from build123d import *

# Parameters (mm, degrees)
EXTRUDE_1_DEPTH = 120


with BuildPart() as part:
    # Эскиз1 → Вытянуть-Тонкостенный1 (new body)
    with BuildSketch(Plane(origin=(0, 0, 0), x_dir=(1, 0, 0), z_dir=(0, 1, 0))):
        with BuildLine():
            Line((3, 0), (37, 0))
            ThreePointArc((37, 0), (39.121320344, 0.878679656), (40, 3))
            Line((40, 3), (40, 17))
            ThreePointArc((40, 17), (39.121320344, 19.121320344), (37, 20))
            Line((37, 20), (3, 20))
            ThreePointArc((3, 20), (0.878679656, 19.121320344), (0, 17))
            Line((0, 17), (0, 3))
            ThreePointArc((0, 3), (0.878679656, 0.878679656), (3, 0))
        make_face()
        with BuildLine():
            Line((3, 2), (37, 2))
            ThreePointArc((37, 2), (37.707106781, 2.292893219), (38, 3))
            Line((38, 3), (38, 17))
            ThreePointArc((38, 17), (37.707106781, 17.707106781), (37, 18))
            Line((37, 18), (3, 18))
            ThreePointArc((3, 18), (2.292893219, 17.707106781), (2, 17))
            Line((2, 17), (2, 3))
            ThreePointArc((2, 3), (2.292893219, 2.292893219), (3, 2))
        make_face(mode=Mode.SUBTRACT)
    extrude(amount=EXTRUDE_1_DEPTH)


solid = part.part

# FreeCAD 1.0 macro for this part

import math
import FreeCAD as App
import Part
import Sketcher
Q = App.Units.Quantity

doc = App.newDocument("Part")
body = doc.addObject("PartDesign::Body", "Body")

sketch1 = body.newObject("Sketcher::SketchObject", "Sketch")
sketch1.AttachmentSupport = (doc.getObject("XZ_Plane"), [""])
sketch1.MapMode = "FlatFace"
sketch1.addGeometry([
    Part.LineSegment(App.Vector(3, 0, 0), App.Vector(37, 0, 0)),
    Part.ArcOfCircle(Part.Circle(App.Vector(37, -3, 0), App.Vector(0, 0, 1), 3), math.radians(0), math.radians(90)),
    Part.LineSegment(App.Vector(40, -3, 0), App.Vector(40, -17, 0)),
    Part.ArcOfCircle(Part.Circle(App.Vector(37, -17, 0), App.Vector(0, 0, 1), 3), math.radians(-90), math.radians(0)),
    Part.LineSegment(App.Vector(37, -20, 0), App.Vector(3, -20, 0)),
    Part.ArcOfCircle(Part.Circle(App.Vector(3, -17, 0), App.Vector(0, 0, 1), 3), math.radians(180), math.radians(270)),
    Part.LineSegment(App.Vector(0, -17, 0), App.Vector(0, -3, 0)),
    Part.ArcOfCircle(Part.Circle(App.Vector(3, -3, 0), App.Vector(0, 0, 1), 3), math.radians(90), math.radians(180)),
    Part.LineSegment(App.Vector(37, -2, 0), App.Vector(3, -2, 0)),
    Part.ArcOfCircle(Part.Circle(App.Vector(3, -3, 0), App.Vector(0, 0, 1), 1), math.radians(90), math.radians(180)),
    Part.LineSegment(App.Vector(2, -3, 0), App.Vector(2, -17, 0)),
    Part.ArcOfCircle(Part.Circle(App.Vector(3, -17, 0), App.Vector(0, 0, 1), 1), math.radians(-180), math.radians(-90)),
    Part.LineSegment(App.Vector(3, -18, 0), App.Vector(37, -18, 0)),
    Part.ArcOfCircle(Part.Circle(App.Vector(37, -17, 0), App.Vector(0, 0, 1), 1), math.radians(-90), math.radians(0)),
    Part.LineSegment(App.Vector(38, -17, 0), App.Vector(38, -3, 0)),
    Part.ArcOfCircle(Part.Circle(App.Vector(37, -3, 0), App.Vector(0, 0, 1), 1), math.radians(0), math.radians(90)),
], False)
sketch1.addConstraint([
    Sketcher.Constraint("Tangent", 0, 2, 1, 2),
    Sketcher.Constraint("Tangent", 1, 1, 2, 1),
    Sketcher.Constraint("Tangent", 2, 2, 3, 2),
    Sketcher.Constraint("Tangent", 3, 1, 4, 1),
    Sketcher.Constraint("Tangent", 4, 2, 5, 2),
    Sketcher.Constraint("Tangent", 5, 1, 6, 1),
    Sketcher.Constraint("Tangent", 6, 2, 7, 2),
    Sketcher.Constraint("Tangent", 7, 1, 0, 1),
    Sketcher.Constraint("Tangent", 8, 2, 9, 1),
    Sketcher.Constraint("Tangent", 9, 2, 10, 1),
    Sketcher.Constraint("Tangent", 10, 2, 11, 1),
    Sketcher.Constraint("Tangent", 11, 2, 12, 1),
    Sketcher.Constraint("Tangent", 12, 2, 13, 1),
    Sketcher.Constraint("Tangent", 13, 2, 14, 1),
    Sketcher.Constraint("Tangent", 14, 2, 15, 1),
    Sketcher.Constraint("Tangent", 15, 2, 8, 1),
    Sketcher.Constraint("Horizontal", 0),
    Sketcher.Constraint("Vertical", 2),
    Sketcher.Constraint("Horizontal", 4),
    Sketcher.Constraint("Vertical", 6),
    Sketcher.Constraint("Horizontal", 8),
    Sketcher.Constraint("Vertical", 10),
    Sketcher.Constraint("Horizontal", 12),
    Sketcher.Constraint("Vertical", 14),
    Sketcher.Constraint("Coincident", 9, 3, 7, 3),
    Sketcher.Constraint("Coincident", 11, 3, 5, 3),
    Sketcher.Constraint("Coincident", 13, 3, 3, 3),
    Sketcher.Constraint("Equal", 1, 3),
    Sketcher.Constraint("Equal", 3, 5),
    Sketcher.Constraint("Equal", 5, 7),
    Sketcher.Constraint("Equal", 13, 15),
    Sketcher.Constraint("PointOnObject", 0, 2, -1),
    Sketcher.Constraint("PointOnObject", 5, 1, -2),
    Sketcher.Constraint("Radius", 1, Q("3 mm")),
    Sketcher.Constraint("Radius", 9, Q("1 mm")),
    Sketcher.Constraint("DistanceX", 0, 1, 0, 2, Q("34 mm")),
    Sketcher.Constraint("DistanceY", 2, 2, 2, 1, Q("14 mm")),
])
pad1 = body.newObject("PartDesign::Pad", "Pad")
pad1.Profile = sketch1
pad1.Length = 120
pad1.Reversed = True

doc.recompute()
